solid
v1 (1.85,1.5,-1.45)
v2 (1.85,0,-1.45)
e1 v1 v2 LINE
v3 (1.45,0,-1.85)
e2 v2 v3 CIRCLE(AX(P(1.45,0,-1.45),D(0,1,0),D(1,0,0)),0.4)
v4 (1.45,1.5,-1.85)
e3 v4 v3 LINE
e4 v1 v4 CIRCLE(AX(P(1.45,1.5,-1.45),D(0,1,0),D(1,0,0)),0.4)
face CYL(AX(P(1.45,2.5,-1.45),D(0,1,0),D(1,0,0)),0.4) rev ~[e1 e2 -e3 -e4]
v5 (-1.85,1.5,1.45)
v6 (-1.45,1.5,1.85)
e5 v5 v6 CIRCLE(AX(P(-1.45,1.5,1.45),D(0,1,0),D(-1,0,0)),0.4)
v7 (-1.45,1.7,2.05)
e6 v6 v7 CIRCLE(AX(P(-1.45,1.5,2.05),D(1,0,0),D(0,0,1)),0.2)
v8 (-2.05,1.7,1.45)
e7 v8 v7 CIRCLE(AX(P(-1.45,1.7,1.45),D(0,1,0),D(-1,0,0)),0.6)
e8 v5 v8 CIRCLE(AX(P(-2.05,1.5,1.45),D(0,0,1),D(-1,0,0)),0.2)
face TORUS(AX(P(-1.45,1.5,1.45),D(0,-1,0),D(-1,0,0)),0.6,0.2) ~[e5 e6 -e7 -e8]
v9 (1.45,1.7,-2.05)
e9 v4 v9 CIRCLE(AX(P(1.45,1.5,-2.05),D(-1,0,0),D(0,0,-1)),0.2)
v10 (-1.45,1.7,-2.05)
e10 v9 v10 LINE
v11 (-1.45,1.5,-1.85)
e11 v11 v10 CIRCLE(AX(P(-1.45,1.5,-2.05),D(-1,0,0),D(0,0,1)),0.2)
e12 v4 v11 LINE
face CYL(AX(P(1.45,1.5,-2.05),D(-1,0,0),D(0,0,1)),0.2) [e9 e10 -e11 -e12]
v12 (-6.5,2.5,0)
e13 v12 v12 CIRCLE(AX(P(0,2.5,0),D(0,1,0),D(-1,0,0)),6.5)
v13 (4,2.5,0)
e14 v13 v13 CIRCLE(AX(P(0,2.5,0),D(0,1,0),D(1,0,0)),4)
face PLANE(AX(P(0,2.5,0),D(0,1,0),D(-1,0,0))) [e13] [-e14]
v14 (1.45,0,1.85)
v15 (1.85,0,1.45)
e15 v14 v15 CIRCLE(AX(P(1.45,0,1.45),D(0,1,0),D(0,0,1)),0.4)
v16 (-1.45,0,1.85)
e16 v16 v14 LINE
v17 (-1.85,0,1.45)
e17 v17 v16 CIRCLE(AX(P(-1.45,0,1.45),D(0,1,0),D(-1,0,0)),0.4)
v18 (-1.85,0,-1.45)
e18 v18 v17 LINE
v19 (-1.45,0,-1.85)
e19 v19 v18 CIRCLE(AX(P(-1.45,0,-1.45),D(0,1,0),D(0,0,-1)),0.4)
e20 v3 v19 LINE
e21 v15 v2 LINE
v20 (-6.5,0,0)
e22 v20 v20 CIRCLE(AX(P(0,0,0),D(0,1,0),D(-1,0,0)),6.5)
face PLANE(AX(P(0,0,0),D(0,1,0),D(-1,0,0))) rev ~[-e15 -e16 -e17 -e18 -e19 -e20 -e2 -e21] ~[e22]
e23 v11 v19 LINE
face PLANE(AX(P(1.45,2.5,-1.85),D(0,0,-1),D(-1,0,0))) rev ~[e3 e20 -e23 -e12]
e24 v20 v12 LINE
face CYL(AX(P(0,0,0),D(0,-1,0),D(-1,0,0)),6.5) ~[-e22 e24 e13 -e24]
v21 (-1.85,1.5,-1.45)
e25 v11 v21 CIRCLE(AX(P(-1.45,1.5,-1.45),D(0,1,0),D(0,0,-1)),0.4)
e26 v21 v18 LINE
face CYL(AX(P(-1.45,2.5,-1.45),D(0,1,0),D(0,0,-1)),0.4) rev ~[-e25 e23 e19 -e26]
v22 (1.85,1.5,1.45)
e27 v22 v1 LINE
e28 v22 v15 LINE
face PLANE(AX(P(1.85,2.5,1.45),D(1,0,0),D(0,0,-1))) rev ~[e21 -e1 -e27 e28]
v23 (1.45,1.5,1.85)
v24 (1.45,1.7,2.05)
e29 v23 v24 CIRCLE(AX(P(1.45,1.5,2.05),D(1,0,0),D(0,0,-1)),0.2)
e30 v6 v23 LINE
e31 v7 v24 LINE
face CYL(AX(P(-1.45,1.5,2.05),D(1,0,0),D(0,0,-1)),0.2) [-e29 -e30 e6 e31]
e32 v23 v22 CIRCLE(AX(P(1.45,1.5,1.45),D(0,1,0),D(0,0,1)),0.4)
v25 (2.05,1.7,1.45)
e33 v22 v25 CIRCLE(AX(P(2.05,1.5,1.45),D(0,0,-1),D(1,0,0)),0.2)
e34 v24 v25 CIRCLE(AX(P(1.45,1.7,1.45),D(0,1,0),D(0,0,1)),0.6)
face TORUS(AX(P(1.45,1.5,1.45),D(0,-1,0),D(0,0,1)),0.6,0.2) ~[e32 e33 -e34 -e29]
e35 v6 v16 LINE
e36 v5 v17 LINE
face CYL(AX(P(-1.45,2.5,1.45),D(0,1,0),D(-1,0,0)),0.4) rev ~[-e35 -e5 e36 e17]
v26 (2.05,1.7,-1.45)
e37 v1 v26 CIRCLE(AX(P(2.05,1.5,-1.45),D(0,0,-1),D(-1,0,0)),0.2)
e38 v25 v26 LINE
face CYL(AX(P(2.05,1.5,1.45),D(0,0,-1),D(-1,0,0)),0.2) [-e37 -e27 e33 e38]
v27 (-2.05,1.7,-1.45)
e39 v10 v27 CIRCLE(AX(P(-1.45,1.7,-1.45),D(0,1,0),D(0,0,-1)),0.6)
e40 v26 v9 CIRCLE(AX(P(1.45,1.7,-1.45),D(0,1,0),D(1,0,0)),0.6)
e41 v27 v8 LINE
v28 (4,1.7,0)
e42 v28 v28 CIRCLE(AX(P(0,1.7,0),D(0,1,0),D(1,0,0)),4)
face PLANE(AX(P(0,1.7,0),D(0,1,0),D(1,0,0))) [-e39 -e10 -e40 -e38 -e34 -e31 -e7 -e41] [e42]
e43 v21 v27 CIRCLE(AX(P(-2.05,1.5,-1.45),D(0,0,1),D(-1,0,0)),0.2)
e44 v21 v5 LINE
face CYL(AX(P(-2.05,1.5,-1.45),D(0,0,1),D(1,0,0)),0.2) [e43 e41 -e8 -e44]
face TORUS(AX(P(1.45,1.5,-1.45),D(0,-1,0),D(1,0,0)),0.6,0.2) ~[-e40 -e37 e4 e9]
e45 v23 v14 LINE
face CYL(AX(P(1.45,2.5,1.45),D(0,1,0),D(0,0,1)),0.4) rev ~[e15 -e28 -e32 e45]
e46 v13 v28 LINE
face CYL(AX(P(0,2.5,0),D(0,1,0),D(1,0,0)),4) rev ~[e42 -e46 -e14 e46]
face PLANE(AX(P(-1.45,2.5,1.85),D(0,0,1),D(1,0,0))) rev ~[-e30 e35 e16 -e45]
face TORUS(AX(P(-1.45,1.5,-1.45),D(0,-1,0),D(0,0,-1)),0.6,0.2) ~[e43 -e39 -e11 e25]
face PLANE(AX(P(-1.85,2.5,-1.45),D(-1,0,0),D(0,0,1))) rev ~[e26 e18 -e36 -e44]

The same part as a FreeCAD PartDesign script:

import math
import FreeCAD as App
import Part
import Sketcher
from FreeCAD import Vector


def edges_at(feature, points):
    """Names of the edges that pass closest to the given points."""
    edges = feature.Shape.Edges
    near = lambda p: min(range(len(edges)), key=lambda i: edges[i].distToShape(Part.Vertex(*p))[0])
    return sorted({f"Edge{near(p) + 1}" for p in points})

doc = App.newDocument("Part")
params = doc.addObject("Spreadsheet::Sheet", "Params")
for row, (alias, value) in enumerate([
    ("sketch1_diameter", "13 mm"),
    ("pad1_length", "2.5 mm"),
    ("sketch2_radius", "0.4 mm"),
    ("sketch2_width", "2.9 mm"),
    ("sketch3_diameter", "8 mm"),
    ("pocket2_length", "0.8 mm"),
    ("fillet_radius", "0.2 mm"),
], start=1):
    params.set(f"A{row}", alias)
    params.set(f"B{row}", "=" + value)
    params.setAlias(f"B{row}", alias)

body = doc.addObject("PartDesign::Body", "Body")

sketch1 = body.newObject("Sketcher::SketchObject", "Sketch")
sketch1.AttachmentSupport = (doc.getObject("XZ_Plane"), [""])
sketch1.MapMode = "FlatFace"
sketch1.addGeometry(Part.Circle(Vector(0, 0, 0), Vector(0, 0, 1), 6), False)
sketch1.addConstraint([
    Sketcher.Constraint("Coincident", 0, 3, -1, 1),
    Sketcher.Constraint("Diameter", 0, 13.0),
])
sketch1.setExpression("Constraints[1]", "Params.sketch1_diameter")
pad1 = body.newObject("PartDesign::Pad", "Pad")
pad1.Profile = sketch1
pad1.setExpression("Length", "Params.pad1_length")
pad1.Reversed = True

sketch2 = body.newObject("Sketcher::SketchObject", "Sketch001")
sketch2.AttachmentSupport = (doc.getObject("XZ_Plane"), [""])
sketch2.MapMode = "FlatFace"
sketch2.AttachmentOffset = App.Placement(Vector(0, 0, -2.5), App.Rotation())
sketch2.addGeometry([
    Part.ArcOfCircle(Part.Circle(Vector(-1.45, 1.45, 0), Vector(0, 0, 1), 0.4), math.radians(90), math.radians(180)),
    Part.LineSegment(Vector(-1.45, 1.85, 0), Vector(1.45, 1.85, 0)),
    Part.ArcOfCircle(Part.Circle(Vector(1.45, 1.45, 0), Vector(0, 0, 1), 0.4), math.radians(0), math.radians(90)),
    Part.LineSegment(Vector(1.85, 1.45, 0), Vector(1.85, -1.45, 0)),
    Part.ArcOfCircle(Part.Circle(Vector(1.45, -1.45, 0), Vector(0, 0, 1), 0.4), math.radians(-90), math.radians(0)),
    Part.LineSegment(Vector(1.45, -1.85, 0), Vector(-1.45, -1.85, 0)),
    Part.ArcOfCircle(Part.Circle(Vector(-1.45, -1.45, 0), Vector(0, 0, 1), 0.4), math.radians(180), math.radians(270)),
    Part.LineSegment(Vector(-1.85, -1.45, 0), Vector(-1.85, 1.45, 0)),
], False)
sketch2.addConstraint([
    Sketcher.Constraint("Tangent", 0, 1, 1, 1),
    Sketcher.Constraint("Tangent", 1, 2, 2, 2),
    Sketcher.Constraint("Tangent", 2, 1, 3, 1),
    Sketcher.Constraint("Tangent", 3, 2, 4, 2),
    Sketcher.Constraint("Tangent", 4, 1, 5, 1),
    Sketcher.Constraint("Tangent", 5, 2, 6, 2),
    Sketcher.Constraint("Tangent", 6, 1, 7, 1),
    Sketcher.Constraint("Tangent", 7, 2, 0, 2),
    Sketcher.Constraint("Horizontal", 1),
    Sketcher.Constraint("Vertical", 3),
    Sketcher.Constraint("Horizontal", 5),
    Sketcher.Constraint("Vertical", 7),
    Sketcher.Constraint("Equal", 0, 2),
    Sketcher.Constraint("Equal", 2, 4),
    Sketcher.Constraint("Equal", 4, 6),
    Sketcher.Constraint("Symmetric", 0, 3, 4, 3, -1, 1),
    Sketcher.Constraint("Equal", 5, 3),
    Sketcher.Constraint("Radius", 0, 0.4),
    Sketcher.Constraint("DistanceX", 1, 1, 1, 2, 2.9),
])
sketch2.setExpression("Constraints[17]", "Params.sketch2_radius")
sketch2.setExpression("Constraints[18]", "Params.sketch2_width")
pocket1 = body.newObject("PartDesign::Pocket", "Pocket")
pocket1.Profile = sketch2
pocket1.Type = "ThroughAll"
pocket1.Reversed = True

sketch3 = body.newObject("Sketcher::SketchObject", "Sketch002")
sketch3.AttachmentSupport = (doc.getObject("XZ_Plane"), [""])
sketch3.MapMode = "FlatFace"
sketch3.AttachmentOffset = App.Placement(Vector(0, 0, -2.5), App.Rotation())
sketch3.addGeometry(Part.Circle(Vector(0, 0, 0), Vector(0, 0, 1), 4), False)
sketch3.addConstraint([
    Sketcher.Constraint("Coincident", 0, 3, -1, 1),
    Sketcher.Constraint("Diameter", 0, 8.0),
])
sketch3.setExpression("Constraints[1]", "Params.sketch3_diameter")
pocket2 = body.newObject("PartDesign::Pocket", "Pocket001")
pocket2.Profile = sketch3
pocket2.setExpression("Length", "Params.pocket2_length")
pocket2.Reversed = True
doc.recompute()

fillet = body.newObject("PartDesign::Fillet", "Fillet")
fillet.Base = (pocket2, edges_at(pocket2, [
    (-1.733, 1.7, 1.733),
    (0, 1.7, 1.85),
    (1.733, 1.7, 1.733),
    (1.85, 1.7, 0),
    (1.733, 1.7, -1.733),
    (0, 1.7, -1.85),
    (-1.733, 1.7, -1.733),
    (-1.85, 1.7, 0),
]))
fillet.setExpression("Radius", "Params.fillet_radius")

doc.recompute()
